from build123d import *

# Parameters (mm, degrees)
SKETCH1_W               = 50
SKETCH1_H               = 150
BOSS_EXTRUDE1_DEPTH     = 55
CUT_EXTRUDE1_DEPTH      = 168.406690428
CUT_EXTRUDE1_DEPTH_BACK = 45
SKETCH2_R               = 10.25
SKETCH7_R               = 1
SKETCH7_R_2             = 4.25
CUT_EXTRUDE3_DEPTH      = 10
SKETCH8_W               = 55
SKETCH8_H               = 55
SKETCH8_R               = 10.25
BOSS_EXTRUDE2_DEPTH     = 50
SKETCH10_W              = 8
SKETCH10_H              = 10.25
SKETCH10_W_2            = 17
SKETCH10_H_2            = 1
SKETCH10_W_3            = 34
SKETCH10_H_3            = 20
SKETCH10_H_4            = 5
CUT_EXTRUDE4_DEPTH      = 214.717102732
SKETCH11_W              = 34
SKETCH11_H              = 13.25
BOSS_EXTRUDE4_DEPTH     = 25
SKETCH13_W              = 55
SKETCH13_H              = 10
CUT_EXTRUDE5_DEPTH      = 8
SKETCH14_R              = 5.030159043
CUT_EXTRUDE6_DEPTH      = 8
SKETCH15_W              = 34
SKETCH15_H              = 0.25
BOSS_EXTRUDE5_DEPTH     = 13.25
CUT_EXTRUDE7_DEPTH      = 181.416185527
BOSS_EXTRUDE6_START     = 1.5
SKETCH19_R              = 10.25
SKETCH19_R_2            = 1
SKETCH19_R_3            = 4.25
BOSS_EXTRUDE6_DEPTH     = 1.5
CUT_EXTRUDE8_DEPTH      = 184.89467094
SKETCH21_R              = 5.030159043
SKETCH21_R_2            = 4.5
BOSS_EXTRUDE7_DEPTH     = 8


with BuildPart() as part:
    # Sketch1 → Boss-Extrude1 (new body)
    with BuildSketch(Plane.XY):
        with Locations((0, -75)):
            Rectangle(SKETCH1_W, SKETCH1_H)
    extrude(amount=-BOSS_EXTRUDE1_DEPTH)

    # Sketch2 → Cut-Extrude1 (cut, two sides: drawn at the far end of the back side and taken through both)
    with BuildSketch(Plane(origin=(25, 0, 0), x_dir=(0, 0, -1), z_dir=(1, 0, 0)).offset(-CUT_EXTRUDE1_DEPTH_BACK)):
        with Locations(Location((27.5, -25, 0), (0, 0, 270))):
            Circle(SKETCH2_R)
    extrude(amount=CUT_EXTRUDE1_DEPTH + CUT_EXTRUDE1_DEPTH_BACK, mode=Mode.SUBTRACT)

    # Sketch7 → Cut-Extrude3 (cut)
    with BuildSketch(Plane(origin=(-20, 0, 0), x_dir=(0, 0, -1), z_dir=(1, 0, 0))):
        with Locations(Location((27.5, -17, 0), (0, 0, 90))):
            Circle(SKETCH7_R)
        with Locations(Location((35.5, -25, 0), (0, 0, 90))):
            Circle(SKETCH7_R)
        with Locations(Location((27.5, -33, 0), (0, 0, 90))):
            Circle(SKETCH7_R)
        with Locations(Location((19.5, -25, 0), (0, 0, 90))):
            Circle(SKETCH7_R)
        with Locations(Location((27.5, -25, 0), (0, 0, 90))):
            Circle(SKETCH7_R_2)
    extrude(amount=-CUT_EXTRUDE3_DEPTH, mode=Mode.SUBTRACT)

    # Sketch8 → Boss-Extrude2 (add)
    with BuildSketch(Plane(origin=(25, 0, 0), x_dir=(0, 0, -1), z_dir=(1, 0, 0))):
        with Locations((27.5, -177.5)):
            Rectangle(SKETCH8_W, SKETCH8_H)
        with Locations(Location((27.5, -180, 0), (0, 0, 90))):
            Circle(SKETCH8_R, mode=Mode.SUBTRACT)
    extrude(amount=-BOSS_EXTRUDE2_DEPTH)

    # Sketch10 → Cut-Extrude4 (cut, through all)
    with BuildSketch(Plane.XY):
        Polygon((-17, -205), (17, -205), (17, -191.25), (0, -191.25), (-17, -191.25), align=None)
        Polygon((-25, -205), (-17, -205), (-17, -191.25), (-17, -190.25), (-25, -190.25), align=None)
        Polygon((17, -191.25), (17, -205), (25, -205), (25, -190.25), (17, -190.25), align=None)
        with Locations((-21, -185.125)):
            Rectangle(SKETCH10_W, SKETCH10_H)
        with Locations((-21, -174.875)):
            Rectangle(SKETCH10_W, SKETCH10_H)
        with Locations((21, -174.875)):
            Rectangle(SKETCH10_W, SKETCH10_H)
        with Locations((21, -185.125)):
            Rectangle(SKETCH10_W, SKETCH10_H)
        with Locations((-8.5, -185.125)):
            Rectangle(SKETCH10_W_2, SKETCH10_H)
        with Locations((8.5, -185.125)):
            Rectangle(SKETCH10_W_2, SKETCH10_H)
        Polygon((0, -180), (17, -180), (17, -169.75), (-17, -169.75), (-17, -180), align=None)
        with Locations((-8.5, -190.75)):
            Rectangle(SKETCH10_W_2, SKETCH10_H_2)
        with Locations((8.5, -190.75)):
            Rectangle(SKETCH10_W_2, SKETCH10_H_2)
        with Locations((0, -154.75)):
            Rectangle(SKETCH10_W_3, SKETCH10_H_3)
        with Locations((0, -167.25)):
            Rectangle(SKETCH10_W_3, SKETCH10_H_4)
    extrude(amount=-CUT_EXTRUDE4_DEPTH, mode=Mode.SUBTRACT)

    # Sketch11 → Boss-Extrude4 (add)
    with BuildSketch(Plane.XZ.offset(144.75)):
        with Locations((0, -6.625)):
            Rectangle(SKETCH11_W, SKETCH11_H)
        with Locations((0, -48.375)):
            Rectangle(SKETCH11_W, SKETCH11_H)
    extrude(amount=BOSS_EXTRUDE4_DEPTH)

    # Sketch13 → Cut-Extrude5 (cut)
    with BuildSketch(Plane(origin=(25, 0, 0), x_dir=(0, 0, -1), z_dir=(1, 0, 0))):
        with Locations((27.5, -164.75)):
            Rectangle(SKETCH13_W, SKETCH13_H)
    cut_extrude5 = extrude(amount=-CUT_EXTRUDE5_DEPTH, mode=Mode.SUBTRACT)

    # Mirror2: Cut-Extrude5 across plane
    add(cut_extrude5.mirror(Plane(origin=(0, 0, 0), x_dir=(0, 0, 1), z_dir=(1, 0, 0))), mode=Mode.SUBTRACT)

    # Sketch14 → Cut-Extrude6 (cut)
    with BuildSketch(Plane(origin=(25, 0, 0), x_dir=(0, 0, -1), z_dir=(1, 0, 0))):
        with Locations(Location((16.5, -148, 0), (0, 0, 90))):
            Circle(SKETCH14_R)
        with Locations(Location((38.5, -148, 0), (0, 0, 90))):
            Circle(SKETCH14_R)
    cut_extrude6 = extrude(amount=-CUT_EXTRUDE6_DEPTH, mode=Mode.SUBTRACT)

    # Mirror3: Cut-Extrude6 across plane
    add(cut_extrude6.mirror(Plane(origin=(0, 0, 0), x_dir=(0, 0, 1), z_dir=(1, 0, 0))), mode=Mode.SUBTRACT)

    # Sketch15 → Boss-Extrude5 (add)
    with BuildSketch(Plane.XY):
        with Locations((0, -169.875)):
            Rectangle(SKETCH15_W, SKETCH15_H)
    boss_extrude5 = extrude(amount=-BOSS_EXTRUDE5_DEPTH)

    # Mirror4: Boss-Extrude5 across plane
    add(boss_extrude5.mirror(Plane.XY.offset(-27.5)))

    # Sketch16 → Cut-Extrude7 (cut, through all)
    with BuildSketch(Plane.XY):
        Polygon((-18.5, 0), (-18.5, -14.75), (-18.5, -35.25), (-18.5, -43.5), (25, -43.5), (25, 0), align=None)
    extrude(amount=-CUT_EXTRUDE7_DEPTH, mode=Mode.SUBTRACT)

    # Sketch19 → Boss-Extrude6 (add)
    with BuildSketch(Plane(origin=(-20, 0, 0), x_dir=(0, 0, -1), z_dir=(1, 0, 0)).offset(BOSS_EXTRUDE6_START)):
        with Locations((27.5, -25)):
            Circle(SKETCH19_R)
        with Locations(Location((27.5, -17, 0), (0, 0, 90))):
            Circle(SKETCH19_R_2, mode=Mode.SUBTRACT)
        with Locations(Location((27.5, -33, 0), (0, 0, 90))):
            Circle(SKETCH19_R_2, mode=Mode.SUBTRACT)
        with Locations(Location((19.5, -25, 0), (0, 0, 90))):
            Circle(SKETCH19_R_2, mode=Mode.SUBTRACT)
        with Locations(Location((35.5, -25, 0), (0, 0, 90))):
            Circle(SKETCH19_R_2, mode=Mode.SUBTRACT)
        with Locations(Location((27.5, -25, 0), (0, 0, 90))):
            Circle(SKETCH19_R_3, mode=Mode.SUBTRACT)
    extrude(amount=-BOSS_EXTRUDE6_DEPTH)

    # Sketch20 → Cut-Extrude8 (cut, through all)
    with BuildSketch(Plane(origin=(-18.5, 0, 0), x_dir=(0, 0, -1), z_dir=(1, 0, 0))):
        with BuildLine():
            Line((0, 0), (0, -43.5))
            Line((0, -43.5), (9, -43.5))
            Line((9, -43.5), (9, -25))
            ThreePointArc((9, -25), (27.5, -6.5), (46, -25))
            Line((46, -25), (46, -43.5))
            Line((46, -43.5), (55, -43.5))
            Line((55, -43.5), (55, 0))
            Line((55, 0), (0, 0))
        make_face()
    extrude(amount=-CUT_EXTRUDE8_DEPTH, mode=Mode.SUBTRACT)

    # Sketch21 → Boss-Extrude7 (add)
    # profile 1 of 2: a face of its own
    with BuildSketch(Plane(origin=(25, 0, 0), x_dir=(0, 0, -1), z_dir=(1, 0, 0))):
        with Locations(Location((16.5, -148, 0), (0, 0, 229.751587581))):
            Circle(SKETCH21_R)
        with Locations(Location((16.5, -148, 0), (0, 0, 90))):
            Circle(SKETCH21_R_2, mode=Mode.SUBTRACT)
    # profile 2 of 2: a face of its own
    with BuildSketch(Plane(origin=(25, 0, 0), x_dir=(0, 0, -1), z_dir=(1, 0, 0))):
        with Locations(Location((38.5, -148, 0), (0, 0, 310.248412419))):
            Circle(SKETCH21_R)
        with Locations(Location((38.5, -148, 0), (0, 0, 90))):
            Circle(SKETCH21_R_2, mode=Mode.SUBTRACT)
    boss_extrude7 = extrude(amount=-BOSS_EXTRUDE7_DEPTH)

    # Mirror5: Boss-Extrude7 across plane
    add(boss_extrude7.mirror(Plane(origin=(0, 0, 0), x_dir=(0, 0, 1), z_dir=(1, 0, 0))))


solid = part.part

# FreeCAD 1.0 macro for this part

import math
import FreeCAD as App
import Part
import Sketcher
from FreeCAD import Vector


def add_polygon(sketch, points):
    """Adds a closed chain of lines whose ends are joined by coincident constraints."""
    first, n = sketch.GeometryCount, len(points)
    for a, b in zip(points, points[1:] + points[:1]):
        sketch.addGeometry(Part.LineSegment(App.Vector(*a, 0), App.Vector(*b, 0)), False)
    for i in range(n):
        sketch.addConstraint(Sketcher.Constraint("Coincident", first + i, 2, first + (i + 1) % n, 1))

doc = App.newDocument("Part")
body = doc.addObject("PartDesign::Body", "Body")

sketch1 = body.newObject("Sketcher::SketchObject", "Sketch")
sketch1.AttachmentSupport = (doc.getObject("XY_Plane"), [""])
sketch1.MapMode = "FlatFace"
add_polygon(sketch1, [(-25, 0), (-25, -150), (25, -150), (25, 0)])
sketch1.addConstraint([
    Sketcher.Constraint("Vertical", 0),
    Sketcher.Constraint("Horizontal", 1),
    Sketcher.Constraint("Vertical", 2),
    Sketcher.Constraint("Horizontal", 3),
    Sketcher.Constraint("Symmetric", 2, 2, 3, 2, -1, 1),
    Sketcher.Constraint("DistanceX", 1, 1, 1, 2, 50.0),
    Sketcher.Constraint("DistanceY", 0, 2, 0, 1, 150.0),
])
pad1 = body.newObject("PartDesign::Pad", "Pad")
pad1.Profile = sketch1
pad1.Length = 55
pad1.Reversed = True

sketch2 = body.newObject("Sketcher::SketchObject", "Sketch001")
sketch2.AttachmentSupport = (doc.getObject("YZ_Plane"), [""])
sketch2.MapMode = "FlatFace"
sketch2.AttachmentOffset = App.Placement(Vector(0, 0, 25), App.Rotation())
sketch2.addGeometry(Part.Circle(Vector(-25, -28, 0), Vector(0, 0, 1), 10), False)
sketch2.addConstraint([
    Sketcher.Constraint("Diameter", 0, 20.5),
    Sketcher.Constraint("DistanceX", 0, 3, -1, 1, 25.0),
    Sketcher.Constraint("DistanceY", 0, 3, -1, 1, 27.5),
])
pocket1 = body.newObject("PartDesign::Pocket", "Pocket")
pocket1.Profile = sketch2
pocket1.Type = "TwoLengths"
pocket1.Length = 168.40669
pocket1.Length2 = 45
pocket1.Reversed = True

sketch3 = body.newObject("Sketcher::SketchObject", "Sketch002")
sketch3.AttachmentSupport = (doc.getObject("YZ_Plane"), [""])
sketch3.MapMode = "FlatFace"
sketch3.AttachmentOffset = App.Placement(Vector(0, 0, -20), App.Rotation())
sketch3.addGeometry([
    Part.Circle(Vector(-17, -27.5, 0), Vector(0, 0, 1), 1),
    Part.Circle(Vector(-25, -35.5, 0), Vector(0, 0, 1), 1),
    Part.Circle(Vector(-33, -27.5, 0), Vector(0, 0, 1), 1),
    Part.Circle(Vector(-25, -19.5, 0), Vector(0, 0, 1), 1),
    Part.Circle(Vector(-25, -27.5, 0), Vector(0, 0, 1), 4.2),
], False)
sketch3.addConstraint([
    Sketcher.Constraint("Equal", 0, 1),
    Sketcher.Constraint("Equal", 1, 2),
    Sketcher.Constraint("Equal", 2, 3),
    Sketcher.Constraint("Horizontal", 0, 3, 2, 3),
    Sketcher.Constraint("Horizontal", 2, 3, 4, 3),
    Sketcher.Constraint("Vertical", 1, 3, 3, 3),
    Sketcher.Constraint("Vertical", 3, 3, 4, 3),
    Sketcher.Constraint("Diameter", 0, 2.0),
    Sketcher.Constraint("Diameter", 4, 8.5),
    Sketcher.Constraint("DistanceX", 0, 3, -1, 1, 17.0),
    Sketcher.Constraint("DistanceX", 1, 3, -1, 1, 25.0),
    Sketcher.Constraint("DistanceX", 2, 3, -1, 1, 33.0),
    Sketcher.Constraint("DistanceY", 1, 3, 0, 3, 8.0),
    Sketcher.Constraint("DistanceY", 0, 3, 3, 3, 8.0),
    Sketcher.Constraint("DistanceY", 0, 3, -1, 1, 27.5),
])
pocket2 = body.newObject("PartDesign::Pocket", "Pocket001")
pocket2.Profile = sketch3
pocket2.Length = 10

sketch4 = body.newObject("Sketcher::SketchObject", "Sketch003")
sketch4.AttachmentSupport = (doc.getObject("YZ_Plane"), [""])
sketch4.MapMode = "FlatFace"
sketch4.AttachmentOffset = App.Placement(Vector(0, 0, 25), App.Rotation())
add_polygon(sketch4, [(-150, 0), (-205, 0), (-205, -55), (-150, -55)])
sketch4.addGeometry(Part.Circle(Vector(-180, -28, 0), Vector(0, 0, 1), 10), False)
sketch4.addConstraint([
    Sketcher.Constraint("Horizontal", 0),
    Sketcher.Constraint("Vertical", 1),
    Sketcher.Constraint("Horizontal", 2),
    Sketcher.Constraint("Vertical", 3),
    Sketcher.Constraint("PointOnObject", 0, 2, -1),
    Sketcher.Constraint("Equal", 2, 1),
    Sketcher.Constraint("Diameter", 4, 20.5),
    Sketcher.Constraint("DistanceX", 0, 2, 0, 1, 55.0),
    Sketcher.Constraint("DistanceX", 4, 3, -1, 1, 180.0),
    Sketcher.Constraint("DistanceX", 0, 2, -1, 1, 205.0),
    Sketcher.Constraint("DistanceY", 4, 3, -1, 1, 27.5),
])
pad2 = body.newObject("PartDesign::Pad", "Pad001")
pad2.Profile = sketch4
pad2.Length = 50
pad2.Reversed = True

sketch5 = body.newObject("Sketcher::SketchObject", "Sketch004")
sketch5.AttachmentSupport = (doc.getObject("XY_Plane"), [""])
sketch5.MapMode = "FlatFace"
add_polygon(sketch5, [(-25, -170), (-25, -205), (25, -205), (25, -170), (17, -170), (17, -145), (-17, -145), (-17, -170)])
sketch5.addConstraint([
    Sketcher.Constraint("Vertical", 0),
    Sketcher.Constraint("Horizontal", 1),
    Sketcher.Constraint("Vertical", 2),
    Sketcher.Constraint("Horizontal", 3),
    Sketcher.Constraint("Vertical", 4),
    Sketcher.Constraint("Horizontal", 5),
    Sketcher.Constraint("Vertical", 6),
    Sketcher.Constraint("Horizontal", 7),
    Sketcher.Constraint("Symmetric", 3, 2, 6, 2, -2),
    Sketcher.Constraint("Equal", 3, 7),
    Sketcher.Constraint("DistanceX", 1, 1, 1, 2, 50.0),
    Sketcher.Constraint("DistanceX", 3, 2, 3, 1, 8.0),
    Sketcher.Constraint("DistanceY", 4, 1, 4, 2, 25.0),
    Sketcher.Constraint("DistanceY", 0, 2, -1, 1, 205.0),
    Sketcher.Constraint("DistanceY", 0, 2, 0, 1, 35.25),
])
pocket3 = body.newObject("PartDesign::Pocket", "Pocket002")
pocket3.Profile = sketch5
pocket3.Type = "ThroughAll"

sketch6 = body.newObject("Sketcher::SketchObject", "Sketch005")
sketch6.AttachmentSupport = (doc.getObject("XZ_Plane"), [""])
sketch6.MapMode = "FlatFace"
sketch6.AttachmentOffset = App.Placement(Vector(0, 0, 144.75), App.Rotation())
add_polygon(sketch6, [(-17, 0), (-17, -13), (17, -13), (17, 0)])
add_polygon(sketch6, [(-17, -42), (-17, -55), (17, -55), (17, -42)])
sketch6.addConstraint([
    Sketcher.Constraint("Vertical", 0),
    Sketcher.Constraint("Horizontal", 1),
    Sketcher.Constraint("Vertical", 2),
    Sketcher.Constraint("Horizontal", 3),
    Sketcher.Constraint("Vertical", 4),
    Sketcher.Constraint("Horizontal", 5),
    Sketcher.Constraint("Vertical", 6),
    Sketcher.Constraint("Horizontal", 7),
    Sketcher.Constraint("Symmetric", 2, 2, 3, 2, -1, 1),
    Sketcher.Constraint("Vertical", 3, 2, 4, 2),
    Sketcher.Constraint("Vertical", 2, 2, 5, 2),
    Sketcher.Constraint("Equal", 2, 4),
    Sketcher.Constraint("DistanceX", 1, 1, 1, 2, 34.0),
    Sketcher.Constraint("DistanceY", 4, 2, -1, 1, 55.0),
    Sketcher.Constraint("DistanceY", 0, 2, 0, 1, 13.25),
])
pad3 = body.newObject("PartDesign::Pad", "Pad002")
pad3.Profile = sketch6
pad3.Length = 25

sketch7 = body.newObject("Sketcher::SketchObject", "Sketch006")
sketch7.AttachmentSupport = (doc.getObject("YZ_Plane"), [""])
sketch7.MapMode = "FlatFace"
sketch7.AttachmentOffset = App.Placement(Vector(0, 0, 25), App.Rotation())
add_polygon(sketch7, [(-160, 0), (-170, 0), (-170, -55), (-160, -55)])
sketch7.addConstraint([
    Sketcher.Constraint("Horizontal", 0),
    Sketcher.Constraint("Vertical", 1),
    Sketcher.Constraint("Horizontal", 2),
    Sketcher.Constraint("Vertical", 3),
    Sketcher.Constraint("PointOnObject", 0, 2, -1),
    Sketcher.Constraint("DistanceX", 0, 2, 0, 1, 10.0),
    Sketcher.Constraint("DistanceY", 1, 2, 1, 1, 55.0),
    Sketcher.Constraint("DistanceX", 0, 2, -1, 1, 169.75),
])
pocket4 = body.newObject("PartDesign::Pocket", "Pocket003")
pocket4.Profile = sketch7
pocket4.Length = 8
doc.recompute()

mirrored = body.newObject("PartDesign::Mirrored", "Mirrored")
mirrored.Originals = [pocket4]
mirrored.MirrorPlane = (doc.getObject("YZ_Plane"), [""])
body.Tip = mirrored

sketch8 = body.newObject("Sketcher::SketchObject", "Sketch007")
sketch8.AttachmentSupport = (doc.getObject("YZ_Plane"), [""])
sketch8.MapMode = "FlatFace"
sketch8.AttachmentOffset = App.Placement(Vector(0, 0, 25), App.Rotation())
sketch8.addGeometry([
    Part.Circle(Vector(-148, -16, 0), Vector(0, 0, 1), 5),
    Part.Circle(Vector(-148, -38, 0), Vector(0, 0, 1), 5),
], False)
sketch8.addConstraint([
    Sketcher.Constraint("Equal", 0, 1),
    Sketcher.Constraint("Vertical", 0, 3, 1, 3),
    Sketcher.Constraint("DistanceX", 0, 3, -1, 1, 148.0),
    Sketcher.Constraint("DistanceY", 1, 3, 0, 3, 22.0),
    Sketcher.Constraint("DistanceY", 0, 3, -1, 1, 16.5),
    Sketcher.Constraint("Diameter", 0, 10.060318),
])
pocket5 = body.newObject("PartDesign::Pocket", "Pocket004")
pocket5.Profile = sketch8
pocket5.Length = 8
doc.recompute()

mirrored2 = body.newObject("PartDesign::Mirrored", "Mirrored001")
mirrored2.Originals = [pocket5]
mirrored2.MirrorPlane = (doc.getObject("YZ_Plane"), [""])
body.Tip = mirrored2

sketch9 = body.newObject("Sketcher::SketchObject", "Sketch008")
sketch9.AttachmentSupport = (doc.getObject("XY_Plane"), [""])
sketch9.MapMode = "FlatFace"
add_polygon(sketch9, [(-17, -169.75), (-17, -170), (17, -170), (17, -169.75)])
sketch9.addConstraint([
    Sketcher.Constraint("Vertical", 0),
    Sketcher.Constraint("Horizontal", 1),
    Sketcher.Constraint("Vertical", 2),
    Sketcher.Constraint("Horizontal", 3),
    Sketcher.Constraint("DistanceX", 1, 1, 1, 2, 34.0),
    Sketcher.Constraint("DistanceX", 0, 2, -1, 1, 17.0),
    Sketcher.Constraint("DistanceY", 0, 2, -1, 1, 170.0),
    Sketcher.Constraint("DistanceY", 0, 2, 0, 1, 0.25),
])
pad4 = body.newObject("PartDesign::Pad", "Pad003")
pad4.Profile = sketch9
pad4.Length = 13.25
pad4.Reversed = True
doc.recompute()

datumplane = body.newObject("PartDesign::Plane", "DatumPlane")
datumplane.AttachmentSupport = (doc.getObject("XY_Plane"), [""])
datumplane.MapMode = "FlatFace"
datumplane.AttachmentOffset = App.Placement(Vector(0, 0, -27.5), App.Rotation())
mirrored3 = body.newObject("PartDesign::Mirrored", "Mirrored002")
mirrored3.Originals = [pad4]
mirrored3.MirrorPlane = (datumplane, [""])
body.Tip = mirrored3

sketch10 = body.newObject("Sketcher::SketchObject", "Sketch009")
sketch10.AttachmentSupport = (doc.getObject("XY_Plane"), [""])
sketch10.MapMode = "FlatFace"
add_polygon(sketch10, [(-18, 0), (-18, -44), (25, -44), (25, 0)])
sketch10.addConstraint([
    Sketcher.Constraint("Vertical", 0),
    Sketcher.Constraint("Horizontal", 1),
    Sketcher.Constraint("Vertical", 2),
    Sketcher.Constraint("Horizontal", 3),
    Sketcher.Constraint("PointOnObject", 2, 2, -1),
    Sketcher.Constraint("Equal", 3, 0),
    Sketcher.Constraint("DistanceX", 1, 1, 1, 2, 43.5),
    Sketcher.Constraint("DistanceX", -1, 1, 1, 2, 25.0),
])
pocket6 = body.newObject("PartDesign::Pocket", "Pocket005")
pocket6.Profile = sketch10
pocket6.Type = "ThroughAll"

sketch11 = body.newObject("Sketcher::SketchObject", "Sketch010")
sketch11.AttachmentSupport = (doc.getObject("YZ_Plane"), [""])
sketch11.MapMode = "FlatFace"
sketch11.AttachmentOffset = App.Placement(Vector(0, 0, -18.5), App.Rotation())
sketch11.addGeometry([
    Part.Circle(Vector(-25, -27.5, 0), Vector(0, 0, 1), 10.2),
    Part.Circle(Vector(-33, -27.5, 0), Vector(0, 0, 1), 1),
    Part.Circle(Vector(-25, -19.5, 0), Vector(0, 0, 1), 1),
    Part.Circle(Vector(-25, -27.5, 0), Vector(0, 0, 1), 4.2),
    Part.Circle(Vector(-25, -35.5, 0), Vector(0, 0, 1), 1),
    Part.Circle(Vector(-17, -27.5, 0), Vector(0, 0, 1), 1),
], False)
sketch11.addConstraint([
    Sketcher.Constraint("Coincident", 3, 3, 0, 3),
    Sketcher.Constraint("Equal", 1, 2),
    Sketcher.Constraint("Equal", 2, 4),
    Sketcher.Constraint("Equal", 4, 5),
    Sketcher.Constraint("Horizontal", 0, 3, 1, 3),
    Sketcher.Constraint("Horizontal", 3, 3, 5, 3),
    Sketcher.Constraint("Vertical", 0, 3, 2, 3),
    Sketcher.Constraint("Vertical", 3, 3, 4, 3),
    Sketcher.Constraint("Diameter", 1, 2.0),
    Sketcher.Constraint("Diameter", 0, 20.5),
    Sketcher.Constraint("Diameter", 3, 8.5),
    Sketcher.Constraint("DistanceX", 0, 3, -1, 1, 25.0),
    Sketcher.Constraint("DistanceX", 1, 3, -1, 1, 33.0),
    Sketcher.Constraint("DistanceX", 5, 3, -1, 1, 17.0),
    Sketcher.Constraint("DistanceY", 0, 3, 2, 3, 8.0),
    Sketcher.Constraint("DistanceY", 4, 3, 0, 3, 8.0),
    Sketcher.Constraint("DistanceY", 0, 3, -1, 1, 27.5),
])
pad5 = body.newObject("PartDesign::Pad", "Pad004")
pad5.Profile = sketch11
pad5.Length = 1.5
pad5.Reversed = True

sketch12 = body.newObject("Sketcher::SketchObject", "Sketch011")
sketch12.AttachmentSupport = (doc.getObject("YZ_Plane"), [""])
sketch12.MapMode = "FlatFace"
sketch12.AttachmentOffset = App.Placement(Vector(0, 0, -18.5), App.Rotation())
sketch12.addGeometry([
    Part.LineSegment(Vector(0, 0, 0), Vector(-44, 0, 0)),
    Part.LineSegment(Vector(-44, 0, 0), Vector(-44, -9, 0)),
    Part.LineSegment(Vector(-44, -9, 0), Vector(-25, -9, 0)),
    Part.ArcOfCircle(Part.Circle(Vector(-25, -28, 0), Vector(0, 0, 1), 18), math.radians(-90), math.radians(90)),
    Part.LineSegment(Vector(-25, -46, 0), Vector(-44, -46, 0)),
    Part.LineSegment(Vector(-44, -46, 0), Vector(-44, -55, 0)),
    Part.LineSegment(Vector(-44, -55, 0), Vector(0, -55, 0)),
    Part.LineSegment(Vector(0, -55, 0), Vector(0, 0, 0)),
], False)
sketch12.addConstraint([
    Sketcher.Constraint("Coincident", 0, 2, 1, 1),
    Sketcher.Constraint("Coincident", 1, 2, 2, 1),
    Sketcher.Constraint("Tangent", 2, 2, 3, 2),
    Sketcher.Constraint("Tangent", 3, 1, 4, 1),
    Sketcher.Constraint("Coincident", 4, 2, 5, 1),
    Sketcher.Constraint("Coincident", 5, 2, 6, 1),
    Sketcher.Constraint("Coincident", 6, 2, 7, 1),
    Sketcher.Constraint("Coincident", 7, 2, 0, 1),
    Sketcher.Constraint("Horizontal", 0),
    Sketcher.Constraint("Vertical", 1),
    Sketcher.Constraint("Horizontal", 2),
    Sketcher.Constraint("Horizontal", 4),
    Sketcher.Constraint("Vertical", 5),
    Sketcher.Constraint("Horizontal", 6),
    Sketcher.Constraint("Vertical", 7),
    Sketcher.Constraint("Coincident", 7, 2, -1, 1),
    Sketcher.Constraint("Vertical", 1, 2, 4, 2),
    Sketcher.Constraint("Equal", 1, 5),
    Sketcher.Constraint("Radius", 3, 18.5),
    Sketcher.Constraint("DistanceY", 1, 2, 1, 1, 9.0),
    Sketcher.Constraint("DistanceX", 0, 2, 0, 1, 43.5),
    Sketcher.Constraint("DistanceX", 2, 1, 2, 2, 18.5),
])
pocket7 = body.newObject("PartDesign::Pocket", "Pocket006")
pocket7.Profile = sketch12
pocket7.Type = "ThroughAll"

sketch13 = body.newObject("Sketcher::SketchObject", "Sketch012")
sketch13.AttachmentSupport = (doc.getObject("YZ_Plane"), [""])
sketch13.MapMode = "FlatFace"
sketch13.AttachmentOffset = App.Placement(Vector(0, 0, 25), App.Rotation())
sketch13.addGeometry([
    Part.Circle(Vector(-148, -16.5, 0), Vector(0, 0, 1), 5),
    Part.Circle(Vector(-148, -16.5, 0), Vector(0, 0, 1), 4.5),
    Part.Circle(Vector(-148, -38.5, 0), Vector(0, 0, 1), 5),
    Part.Circle(Vector(-148, -38.5, 0), Vector(0, 0, 1), 4.5),
], False)
sketch13.addConstraint([
    Sketcher.Constraint("Coincident", 1, 3, 0, 3),
    Sketcher.Constraint("Coincident", 3, 3, 2, 3),
    Sketcher.Constraint("Equal", 0, 2),
    Sketcher.Constraint("Equal", 1, 3),
    Sketcher.Constraint("Vertical", 1, 3, 2, 3),
    Sketcher.Constraint("Diameter", 1, 9.0),
    Sketcher.Constraint("DistanceX", 0, 3, -1, 1, 148.0),
    Sketcher.Constraint("DistanceY", 2, 3, 0, 3, 22.0),
    Sketcher.Constraint("DistanceY", 0, 3, -1, 1, 16.5),
    Sketcher.Constraint("Diameter", 0, 10.060318),
])
pad6 = body.newObject("PartDesign::Pad", "Pad005")
pad6.Profile = sketch13
pad6.Length = 8
pad6.Reversed = True
doc.recompute()

mirrored4 = body.newObject("PartDesign::Mirrored", "Mirrored003")
mirrored4.Originals = [pad6]
mirrored4.MirrorPlane = (doc.getObject("YZ_Plane"), [""])
body.Tip = mirrored4

doc.recompute()
